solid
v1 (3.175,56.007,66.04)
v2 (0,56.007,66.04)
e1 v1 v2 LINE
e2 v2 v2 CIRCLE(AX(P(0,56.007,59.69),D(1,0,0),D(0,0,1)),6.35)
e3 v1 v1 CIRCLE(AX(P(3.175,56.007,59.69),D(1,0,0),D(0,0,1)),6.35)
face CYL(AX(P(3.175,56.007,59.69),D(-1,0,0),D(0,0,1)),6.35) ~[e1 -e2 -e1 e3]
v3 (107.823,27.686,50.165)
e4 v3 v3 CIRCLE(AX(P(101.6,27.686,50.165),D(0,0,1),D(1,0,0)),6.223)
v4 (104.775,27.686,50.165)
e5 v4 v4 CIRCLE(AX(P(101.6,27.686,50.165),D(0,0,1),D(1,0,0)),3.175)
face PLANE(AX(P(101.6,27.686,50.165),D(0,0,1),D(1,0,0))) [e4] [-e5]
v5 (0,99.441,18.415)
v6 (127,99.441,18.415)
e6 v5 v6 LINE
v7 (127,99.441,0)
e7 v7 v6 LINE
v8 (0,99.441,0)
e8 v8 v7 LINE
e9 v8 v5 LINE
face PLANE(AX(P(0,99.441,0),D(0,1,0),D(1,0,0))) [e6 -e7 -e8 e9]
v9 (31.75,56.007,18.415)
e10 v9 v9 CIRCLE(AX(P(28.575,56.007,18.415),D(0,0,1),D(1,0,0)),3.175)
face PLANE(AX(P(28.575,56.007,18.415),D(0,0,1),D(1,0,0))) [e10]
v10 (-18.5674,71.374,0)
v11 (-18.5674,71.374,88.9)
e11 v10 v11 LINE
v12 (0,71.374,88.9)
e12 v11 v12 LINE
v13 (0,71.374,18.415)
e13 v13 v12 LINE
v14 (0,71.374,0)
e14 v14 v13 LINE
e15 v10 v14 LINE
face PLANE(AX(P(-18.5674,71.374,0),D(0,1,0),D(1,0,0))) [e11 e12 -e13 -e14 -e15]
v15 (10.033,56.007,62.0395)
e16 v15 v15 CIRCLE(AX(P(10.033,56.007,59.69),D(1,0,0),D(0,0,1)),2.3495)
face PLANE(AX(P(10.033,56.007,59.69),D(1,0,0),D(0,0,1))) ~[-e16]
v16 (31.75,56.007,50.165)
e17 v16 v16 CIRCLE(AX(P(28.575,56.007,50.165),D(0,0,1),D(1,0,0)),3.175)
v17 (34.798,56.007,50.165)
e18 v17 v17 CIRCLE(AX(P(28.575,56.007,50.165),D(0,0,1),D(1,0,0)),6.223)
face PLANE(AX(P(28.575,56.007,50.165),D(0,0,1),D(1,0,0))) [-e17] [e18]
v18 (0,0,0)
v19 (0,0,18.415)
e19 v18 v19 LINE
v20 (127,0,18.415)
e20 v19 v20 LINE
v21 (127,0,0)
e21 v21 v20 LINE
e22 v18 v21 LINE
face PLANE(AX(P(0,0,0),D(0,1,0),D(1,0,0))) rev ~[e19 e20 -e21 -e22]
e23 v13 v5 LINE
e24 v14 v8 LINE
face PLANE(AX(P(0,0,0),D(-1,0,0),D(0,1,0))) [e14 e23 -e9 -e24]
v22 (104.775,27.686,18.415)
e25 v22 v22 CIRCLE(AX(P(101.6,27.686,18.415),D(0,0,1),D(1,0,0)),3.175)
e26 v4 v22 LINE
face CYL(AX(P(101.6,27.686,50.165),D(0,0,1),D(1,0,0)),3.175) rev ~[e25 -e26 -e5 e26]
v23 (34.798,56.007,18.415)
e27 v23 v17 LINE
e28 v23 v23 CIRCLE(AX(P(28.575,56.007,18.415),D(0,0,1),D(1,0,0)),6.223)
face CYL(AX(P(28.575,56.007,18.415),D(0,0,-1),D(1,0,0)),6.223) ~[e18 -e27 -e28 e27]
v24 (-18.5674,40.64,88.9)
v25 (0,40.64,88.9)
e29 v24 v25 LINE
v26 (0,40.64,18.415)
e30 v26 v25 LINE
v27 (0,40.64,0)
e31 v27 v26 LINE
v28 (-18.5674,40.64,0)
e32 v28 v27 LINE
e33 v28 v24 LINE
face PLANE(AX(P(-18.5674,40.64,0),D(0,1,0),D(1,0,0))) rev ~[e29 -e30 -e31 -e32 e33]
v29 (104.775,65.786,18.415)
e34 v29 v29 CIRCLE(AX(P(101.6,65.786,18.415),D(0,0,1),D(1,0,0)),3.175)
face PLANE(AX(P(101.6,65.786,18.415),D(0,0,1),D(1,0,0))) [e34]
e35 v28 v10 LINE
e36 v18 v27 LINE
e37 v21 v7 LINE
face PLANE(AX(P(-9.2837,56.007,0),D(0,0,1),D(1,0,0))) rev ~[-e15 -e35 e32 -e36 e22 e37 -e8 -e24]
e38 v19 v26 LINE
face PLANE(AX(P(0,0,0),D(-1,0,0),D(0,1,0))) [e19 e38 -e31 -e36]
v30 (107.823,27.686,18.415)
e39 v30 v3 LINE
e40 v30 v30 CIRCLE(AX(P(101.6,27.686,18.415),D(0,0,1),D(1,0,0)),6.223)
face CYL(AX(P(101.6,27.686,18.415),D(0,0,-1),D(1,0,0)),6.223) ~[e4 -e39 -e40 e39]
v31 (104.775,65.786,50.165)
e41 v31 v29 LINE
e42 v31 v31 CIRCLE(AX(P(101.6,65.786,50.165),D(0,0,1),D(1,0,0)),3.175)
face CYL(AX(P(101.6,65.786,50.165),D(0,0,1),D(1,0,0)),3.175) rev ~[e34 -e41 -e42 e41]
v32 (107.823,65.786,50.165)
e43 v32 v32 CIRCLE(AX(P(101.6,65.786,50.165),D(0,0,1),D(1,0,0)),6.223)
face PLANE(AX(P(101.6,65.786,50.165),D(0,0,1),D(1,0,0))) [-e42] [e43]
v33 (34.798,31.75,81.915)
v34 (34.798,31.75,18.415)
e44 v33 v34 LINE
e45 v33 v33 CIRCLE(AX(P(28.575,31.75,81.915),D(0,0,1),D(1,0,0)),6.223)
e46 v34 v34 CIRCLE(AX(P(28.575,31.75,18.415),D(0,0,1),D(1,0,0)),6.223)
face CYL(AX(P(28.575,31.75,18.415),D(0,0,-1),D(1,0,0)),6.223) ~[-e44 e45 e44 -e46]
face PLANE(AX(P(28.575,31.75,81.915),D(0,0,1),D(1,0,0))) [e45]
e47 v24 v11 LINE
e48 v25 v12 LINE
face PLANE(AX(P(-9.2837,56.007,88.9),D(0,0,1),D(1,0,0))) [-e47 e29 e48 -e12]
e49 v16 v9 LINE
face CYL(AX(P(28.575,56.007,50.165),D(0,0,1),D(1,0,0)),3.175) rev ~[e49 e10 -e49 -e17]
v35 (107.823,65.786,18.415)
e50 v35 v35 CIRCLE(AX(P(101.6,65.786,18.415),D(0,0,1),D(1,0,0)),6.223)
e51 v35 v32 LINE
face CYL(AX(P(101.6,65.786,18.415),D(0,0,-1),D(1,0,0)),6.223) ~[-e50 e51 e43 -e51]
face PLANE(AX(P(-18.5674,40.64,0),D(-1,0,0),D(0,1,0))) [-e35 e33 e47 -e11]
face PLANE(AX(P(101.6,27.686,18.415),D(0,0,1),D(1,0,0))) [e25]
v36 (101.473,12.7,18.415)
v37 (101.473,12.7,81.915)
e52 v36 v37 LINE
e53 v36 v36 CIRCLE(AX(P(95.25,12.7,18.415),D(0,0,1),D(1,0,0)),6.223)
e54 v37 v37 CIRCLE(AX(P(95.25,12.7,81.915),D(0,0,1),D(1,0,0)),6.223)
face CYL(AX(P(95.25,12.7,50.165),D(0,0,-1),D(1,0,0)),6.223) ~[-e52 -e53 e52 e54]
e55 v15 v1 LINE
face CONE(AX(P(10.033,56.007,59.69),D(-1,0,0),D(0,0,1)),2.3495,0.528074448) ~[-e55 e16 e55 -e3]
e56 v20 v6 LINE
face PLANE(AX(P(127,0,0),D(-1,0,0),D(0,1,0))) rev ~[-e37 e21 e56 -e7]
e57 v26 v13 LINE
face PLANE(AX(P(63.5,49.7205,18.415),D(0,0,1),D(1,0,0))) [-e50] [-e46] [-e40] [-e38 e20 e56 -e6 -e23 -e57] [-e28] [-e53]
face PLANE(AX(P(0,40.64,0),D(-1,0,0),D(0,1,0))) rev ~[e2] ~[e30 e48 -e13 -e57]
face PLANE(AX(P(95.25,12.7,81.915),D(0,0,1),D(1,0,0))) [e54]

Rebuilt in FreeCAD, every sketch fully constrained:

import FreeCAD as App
import Part
import Sketcher

V = App.Vector
Q = App.Units.Quantity

doc = App.newDocument("Part")
body = doc.addObject("PartDesign::Body", "Body")

# Sketch on XY plane
sketch1 = body.newObject("Sketcher::SketchObject", "Sketch")
sketch1.AttachmentSupport = (doc.getObject("XY_Plane"), [""])
sketch1.MapMode = "FlatFace"
sketch1.addGeometry(Part.LineSegment(V(0, 99.441, 0), V(0, 0, 0)), False)
sketch1.addGeometry(Part.LineSegment(V(0, 0, 0), V(127, 0, 0)), False)
sketch1.addGeometry(Part.LineSegment(V(127, 0, 0), V(127, 99.441, 0)), False)
sketch1.addGeometry(Part.LineSegment(V(127, 99.441, 0), V(0, 99.441, 0)), False)
sketch1.addConstraint(Sketcher.Constraint("Coincident", 0, 2, 1, 1))
sketch1.addConstraint(Sketcher.Constraint("Coincident", 1, 2, 2, 1))
sketch1.addConstraint(Sketcher.Constraint("Coincident", 2, 2, 3, 1))
sketch1.addConstraint(Sketcher.Constraint("Coincident", 3, 2, 0, 1))
sketch1.addConstraint(Sketcher.Constraint("Vertical", 0))
sketch1.addConstraint(Sketcher.Constraint("Horizontal", 1))
sketch1.addConstraint(Sketcher.Constraint("Vertical", 2))
sketch1.addConstraint(Sketcher.Constraint("Horizontal", 3))
sketch1.addConstraint(Sketcher.Constraint("Coincident", 0, 2, -1, 1))
sketch1.addConstraint(Sketcher.Constraint("DistanceX", 1, 1, 1, 2, Q("5 in")))
sketch1.addConstraint(Sketcher.Constraint("DistanceY", 0, 2, 0, 1, Q("3.915 in")))
pad1 = body.newObject("PartDesign::Pad", "Pad")
pad1.Profile = sketch1
pad1.Length = Q("0.725 in")

# Sketch on XY plane
sketch2 = body.newObject("Sketcher::SketchObject", "Sketch001")
sketch2.AttachmentSupport = (doc.getObject("XY_Plane"), [""])
sketch2.MapMode = "FlatFace"
sketch2.addGeometry(Part.LineSegment(V(-18.5674, 71.374, 0), V(-18.5674, 40.64, 0)), False)
sketch2.addGeometry(Part.LineSegment(V(-18.5674, 40.64, 0), V(0, 40.64, 0)), False)
sketch2.addGeometry(Part.LineSegment(V(0, 40.64, 0), V(0, 71.374, 0)), False)
sketch2.addGeometry(Part.LineSegment(V(0, 71.374, 0), V(-18.5674, 71.374, 0)), False)
sketch2.addConstraint(Sketcher.Constraint("Coincident", 0, 2, 1, 1))
sketch2.addConstraint(Sketcher.Constraint("Coincident", 1, 2, 2, 1))
sketch2.addConstraint(Sketcher.Constraint("Coincident", 2, 2, 3, 1))
sketch2.addConstraint(Sketcher.Constraint("Coincident", 3, 2, 0, 1))
sketch2.addConstraint(Sketcher.Constraint("Vertical", 0))
sketch2.addConstraint(Sketcher.Constraint("Horizontal", 1))
sketch2.addConstraint(Sketcher.Constraint("Vertical", 2))
sketch2.addConstraint(Sketcher.Constraint("Horizontal", 3))
sketch2.addConstraint(Sketcher.Constraint("PointOnObject", 1, 2, -2))
sketch2.addConstraint(Sketcher.Constraint("DistanceY", 0, 2, 0, 1, Q("1.21 in")))
sketch2.addConstraint(Sketcher.Constraint("DistanceY", -1, 1, 0, 2, Q("1.6 in")))
sketch2.addConstraint(Sketcher.Constraint("DistanceX", 1, 1, 1, 2, Q("0.731 in")))
pad2 = body.newObject("PartDesign::Pad", "Pad001")
pad2.Profile = sketch2
pad2.Length = Q("3.5 in")

# Sketch on XZ plane
sketch3 = body.newObject("Sketcher::SketchObject", "Sketch002")
sketch3.AttachmentSupport = (doc.getObject("XZ_Plane"), [""])
sketch3.MapMode = "FlatFace"
sketch3.AttachmentOffset = App.Placement(V(0, 0, -2.205 * 25.4), App.Rotation())
sketch3.addGeometry(Part.LineSegment(V(0, 66.04, 0), V(0, 59.69, 0)), False)
sketch3.addGeometry(Part.LineSegment(V(0, 59.69, 0), V(10.033, 59.69, 0)), False)
sketch3.addGeometry(Part.LineSegment(V(10.033, 59.69, 0), V(10.033, 62.0395, 0)), False)
sketch3.addGeometry(Part.LineSegment(V(10.033, 62.0395, 0), V(3.175, 66.04, 0)), False)
sketch3.addGeometry(Part.LineSegment(V(3.175, 66.04, 0), V(0, 66.04, 0)), False)
sketch3.addGeometry(Part.LineSegment(V(0, 59.69, 0), V(10.033, 59.69, 0)), True)  # axis
sketch3.addConstraint(Sketcher.Constraint("Coincident", 0, 2, 1, 1))
sketch3.addConstraint(Sketcher.Constraint("Coincident", 1, 2, 2, 1))
sketch3.addConstraint(Sketcher.Constraint("Coincident", 2, 2, 3, 1))
sketch3.addConstraint(Sketcher.Constraint("Coincident", 3, 2, 4, 1))
sketch3.addConstraint(Sketcher.Constraint("Coincident", 4, 2, 0, 1))
sketch3.addConstraint(Sketcher.Constraint("Vertical", 0))
sketch3.addConstraint(Sketcher.Constraint("Horizontal", 1))
sketch3.addConstraint(Sketcher.Constraint("Vertical", 2))
sketch3.addConstraint(Sketcher.Constraint("Horizontal", 4))
sketch3.addConstraint(Sketcher.Constraint("Horizontal", 5))
sketch3.addConstraint(Sketcher.Constraint("Coincident", 5, 1, 0, 2))
sketch3.addConstraint(Sketcher.Constraint("PointOnObject", 0, 2, -2))
sketch3.addConstraint(Sketcher.Constraint("Vertical", 2, 2, 5, 2))
sketch3.addConstraint(Sketcher.Constraint("DistanceY", 0, 2, 0, 1, Q("0.25 in")))
sketch3.addConstraint(Sketcher.Constraint("DistanceY", -1, 1, 3, 2, Q("2.6 in")))
sketch3.addConstraint(Sketcher.Constraint("DistanceX", 1, 1, 1, 2, Q("0.395 in")))
sketch3.addConstraint(Sketcher.Constraint("DistanceX", 4, 2, 4, 1, Q("0.125 in")))
sketch3.addConstraint(Sketcher.Constraint("DistanceY", 2, 1, 2, 2, Q("0.0925 in")))
revolution = body.newObject("PartDesign::Revolution", "Revolution")
revolution.Profile = sketch3
revolution.ReferenceAxis = (sketch3, ["Axis0"])
revolution.Angle = 360

# Sketch on XY plane
sketch4 = body.newObject("Sketcher::SketchObject", "Sketch003")
sketch4.AttachmentSupport = (doc.getObject("XY_Plane"), [""])
sketch4.MapMode = "FlatFace"
sketch4.AttachmentOffset = App.Placement(V(0, 0, 0.725 * 25.4), App.Rotation())
sketch4.addGeometry(Part.Circle(V(95.25, 12.7, 0), V(0, 0, 1), 6.223), False)
sketch4.addGeometry(Part.Circle(V(101.6, 27.686, 0), V(0, 0, 1), 6.223), False)
sketch4.addGeometry(Part.Circle(V(101.6, 65.786, 0), V(0, 0, 1), 6.223), False)
sketch4.addGeometry(Part.Circle(V(28.575, 56.007, 0), V(0, 0, 1), 6.223), False)
sketch4.addGeometry(Part.Circle(V(28.575, 31.75, 0), V(0, 0, 1), 6.223), False)
sketch4.addConstraint(Sketcher.Constraint("Equal", 0, 1))
sketch4.addConstraint(Sketcher.Constraint("Equal", 1, 2))
sketch4.addConstraint(Sketcher.Constraint("Equal", 2, 3))
sketch4.addConstraint(Sketcher.Constraint("Equal", 3, 4))
sketch4.addConstraint(Sketcher.Constraint("Vertical", 1, 3, 2, 3))
sketch4.addConstraint(Sketcher.Constraint("Vertical", 3, 3, 4, 3))
sketch4.addConstraint(Sketcher.Constraint("Diameter", 0, Q("0.49 in")))
sketch4.addConstraint(Sketcher.Constraint("DistanceX", -1, 1, 1, 3, Q("4 in")))
sketch4.addConstraint(Sketcher.Constraint("DistanceY", -1, 1, 0, 3, Q("0.5 in")))
sketch4.addConstraint(Sketcher.Constraint("DistanceY", 1, 3, 2, 3, Q("1.5 in")))
sketch4.addConstraint(Sketcher.Constraint("DistanceX", -1, 1, 0, 3, Q("3.75 in")))
sketch4.addConstraint(Sketcher.Constraint("DistanceY", -1, 1, 1, 3, Q("1.09 in")))
sketch4.addConstraint(Sketcher.Constraint("DistanceY", -1, 1, 4, 3, Q("1.25 in")))
sketch4.addConstraint(Sketcher.Constraint("DistanceX", -1, 1, 3, 3, Q("1.125 in")))
sketch4.addConstraint(Sketcher.Constraint("DistanceY", -1, 1, 3, 3, Q("2.205 in")))
pad3 = body.newObject("PartDesign::Pad", "Pad002")
pad3.Profile = sketch4
pad3.Length = Q("1.25 in")

# Sketch on XY plane
sketch5 = body.newObject("Sketcher::SketchObject", "Sketch004")
sketch5.AttachmentSupport = (doc.getObject("XY_Plane"), [""])
sketch5.MapMode = "FlatFace"
sketch5.AttachmentOffset = App.Placement(V(0, 0, 1.975 * 25.4), App.Rotation())
sketch5.addGeometry(Part.Circle(V(95.25, 12.7, 0), V(0, 0, 1), 6.223), False)
sketch5.addGeometry(Part.Circle(V(28.575, 31.75, 0), V(0, 0, 1), 6.223), False)
sketch5.addConstraint(Sketcher.Constraint("Equal", 0, 1))
sketch5.addConstraint(Sketcher.Constraint("Diameter", 0, Q("0.49 in")))
sketch5.addConstraint(Sketcher.Constraint("DistanceY", -1, 1, 0, 3, Q("0.5 in")))
sketch5.addConstraint(Sketcher.Constraint("DistanceX", -1, 1, 0, 3, Q("3.75 in")))
sketch5.addConstraint(Sketcher.Constraint("DistanceY", -1, 1, 1, 3, Q("1.25 in")))
sketch5.addConstraint(Sketcher.Constraint("DistanceX", -1, 1, 1, 3, Q("1.125 in")))
pad4 = body.newObject("PartDesign::Pad", "Pad003")
pad4.Profile = sketch5
pad4.Length = Q("1.25 in")

# Sketch on XY plane
sketch6 = body.newObject("Sketcher::SketchObject", "Sketch005")
sketch6.AttachmentSupport = (doc.getObject("XY_Plane"), [""])
sketch6.MapMode = "FlatFace"
sketch6.AttachmentOffset = App.Placement(V(0, 0, 1.975 * 25.4), App.Rotation())
sketch6.addGeometry(Part.Circle(V(28.575, 56.007, 0), V(0, 0, 1), 3.175), False)
sketch6.addGeometry(Part.Circle(V(101.6, 65.786, 0), V(0, 0, 1), 3.175), False)
sketch6.addGeometry(Part.Circle(V(101.6, 27.686, 0), V(0, 0, 1), 3.175), False)
sketch6.addConstraint(Sketcher.Constraint("Equal", 0, 1))
sketch6.addConstraint(Sketcher.Constraint("Equal", 1, 2))
sketch6.addConstraint(Sketcher.Constraint("Vertical", 1, 3, 2, 3))
sketch6.addConstraint(Sketcher.Constraint("Diameter", 0, Q("0.25 in")))
sketch6.addConstraint(Sketcher.Constraint("DistanceX", -1, 1, 1, 3, Q("4 in")))
sketch6.addConstraint(Sketcher.Constraint("DistanceY", 2, 3, 1, 3, Q("1.5 in")))
sketch6.addConstraint(Sketcher.Constraint("DistanceY", -1, 1, 1, 3, Q("2.59 in")))
sketch6.addConstraint(Sketcher.Constraint("DistanceX", -1, 1, 0, 3, Q("1.125 in")))
sketch6.addConstraint(Sketcher.Constraint("DistanceY", -1, 1, 0, 3, Q("2.205 in")))
pocket1 = body.newObject("PartDesign::Pocket", "Pocket")
pocket1.Profile = sketch6
pocket1.Length = Q("1.25 in")

doc.recompute()
